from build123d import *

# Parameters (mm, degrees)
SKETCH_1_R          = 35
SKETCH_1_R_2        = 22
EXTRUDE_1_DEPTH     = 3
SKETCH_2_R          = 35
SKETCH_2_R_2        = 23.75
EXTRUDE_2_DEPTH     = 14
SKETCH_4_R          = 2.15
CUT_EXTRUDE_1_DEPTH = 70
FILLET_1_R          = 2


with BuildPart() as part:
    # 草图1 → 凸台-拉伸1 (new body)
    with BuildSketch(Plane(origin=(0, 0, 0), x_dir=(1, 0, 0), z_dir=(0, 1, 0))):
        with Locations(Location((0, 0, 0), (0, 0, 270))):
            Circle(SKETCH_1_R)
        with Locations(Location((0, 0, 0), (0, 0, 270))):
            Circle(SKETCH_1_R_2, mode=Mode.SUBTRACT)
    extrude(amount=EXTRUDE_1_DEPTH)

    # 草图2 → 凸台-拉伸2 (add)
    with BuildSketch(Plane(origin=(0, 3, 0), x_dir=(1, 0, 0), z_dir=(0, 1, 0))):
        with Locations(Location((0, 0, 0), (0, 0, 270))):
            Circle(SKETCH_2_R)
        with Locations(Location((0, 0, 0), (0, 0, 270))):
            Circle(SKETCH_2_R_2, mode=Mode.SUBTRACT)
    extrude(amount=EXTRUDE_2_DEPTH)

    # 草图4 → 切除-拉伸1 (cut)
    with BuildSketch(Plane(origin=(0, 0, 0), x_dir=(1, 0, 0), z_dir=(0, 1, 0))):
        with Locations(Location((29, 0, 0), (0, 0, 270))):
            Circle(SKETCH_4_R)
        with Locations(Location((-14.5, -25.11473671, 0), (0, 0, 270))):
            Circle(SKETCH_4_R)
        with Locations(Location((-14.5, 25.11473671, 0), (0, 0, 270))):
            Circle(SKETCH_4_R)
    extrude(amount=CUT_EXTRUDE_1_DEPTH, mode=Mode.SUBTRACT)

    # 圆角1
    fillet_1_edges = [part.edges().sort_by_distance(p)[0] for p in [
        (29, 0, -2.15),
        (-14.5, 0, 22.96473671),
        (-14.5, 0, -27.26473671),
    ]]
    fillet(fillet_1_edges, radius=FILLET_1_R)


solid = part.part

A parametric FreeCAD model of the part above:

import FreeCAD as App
import Part
import Sketcher
from FreeCAD import Vector
Q = App.Units.Quantity


def edges_at(feature, points):
    """Names of the edges that pass closest to the given points."""
    edges = feature.Shape.Edges
    near = lambda p: min(range(len(edges)), key=lambda i: edges[i].distToShape(Part.Vertex(*p))[0])
    return sorted({f"Edge{near(p) + 1}" for p in points})

doc = App.newDocument("Part")
body = doc.addObject("PartDesign::Body", "Body")

sketch1 = body.newObject("Sketcher::SketchObject", "Sketch")
sketch1.AttachmentSupport = (doc.getObject("XZ_Plane"), [""])
sketch1.MapMode = "FlatFace"
sketch1.addGeometry(Part.Circle(Vector(0, 0, 0), Vector(0, 0, 1), 35), False)
sketch1.addGeometry(Part.Circle(Vector(0, 0, 0), Vector(0, 0, 1), 22), False)
sketch1.addConstraint(Sketcher.Constraint("Coincident", 0, 3, -1, 1))
sketch1.addConstraint(Sketcher.Constraint("Coincident", 1, 3, -1, 1))
sketch1.addConstraint(Sketcher.Constraint("Diameter", 0, Q("70 mm")))
sketch1.addConstraint(Sketcher.Constraint("Diameter", 1, Q("44 mm")))
pad1 = body.newObject("PartDesign::Pad", "Pad")
pad1.Profile = sketch1
pad1.Length = 3
pad1.Reversed = True

sketch2 = body.newObject("Sketcher::SketchObject", "Sketch001")
sketch2.AttachmentSupport = (doc.getObject("XZ_Plane"), [""])
sketch2.MapMode = "FlatFace"
sketch2.AttachmentOffset = App.Placement(Vector(0, 0, -3), App.Rotation())
sketch2.addGeometry(Part.Circle(Vector(0, 0, 0), Vector(0, 0, 1), 35), False)
sketch2.addGeometry(Part.Circle(Vector(0, 0, 0), Vector(0, 0, 1), 24), False)
sketch2.addConstraint(Sketcher.Constraint("Coincident", 0, 3, -1, 1))
sketch2.addConstraint(Sketcher.Constraint("Coincident", 1, 3, -1, 1))
sketch2.addConstraint(Sketcher.Constraint("Diameter", 0, Q("70 mm")))
sketch2.addConstraint(Sketcher.Constraint("Diameter", 1, Q("47.5 mm")))
pad2 = body.newObject("PartDesign::Pad", "Pad001")
pad2.Profile = sketch2
pad2.Length = 14
pad2.Reversed = True

sketch3 = body.newObject("Sketcher::SketchObject", "Sketch002")
sketch3.AttachmentSupport = (doc.getObject("XZ_Plane"), [""])
sketch3.MapMode = "FlatFace"
sketch3.addGeometry(Part.Circle(Vector(29, 0, 0), Vector(0, 0, 1), 2.1), False)
sketch3.addGeometry(Part.Circle(Vector(-14.5, 25.1, 0), Vector(0, 0, 1), 2.1), False)
sketch3.addGeometry(Part.Circle(Vector(-14.5, -25.1, 0), Vector(0, 0, 1), 2.1), False)
sketch3.addConstraint(Sketcher.Constraint("Equal", 0, 1))
sketch3.addConstraint(Sketcher.Constraint("Equal", 1, 2))
sketch3.addConstraint(Sketcher.Constraint("Symmetric", 1, 3, 2, 3, -1))
sketch3.addConstraint(Sketcher.Constraint("PointOnObject", 0, 3, -1))
sketch3.addConstraint(Sketcher.Constraint("Diameter", 0, Q("4.3 mm")))
sketch3.addConstraint(Sketcher.Constraint("DistanceX", -1, 1, 0, 3, Q("29 mm")))
sketch3.addConstraint(Sketcher.Constraint("DistanceX", 1, 3, -1, 1, Q("14.5 mm")))
sketch3.addConstraint(Sketcher.Constraint("DistanceY", -1, 1, 1, 3, Q("25.114737 mm")))
pocket1 = body.newObject("PartDesign::Pocket", "Pocket")
pocket1.Profile = sketch3
pocket1.Length = 70
doc.recompute()

fillet = body.newObject("PartDesign::Fillet", "Fillet")
fillet.Base = (pocket1, edges_at(pocket1, [(29, 0, -2.15), (-14.5, 0, 22.965), (-14.5, 0, -27.265)]))
fillet.Radius = 2

doc.recompute()
